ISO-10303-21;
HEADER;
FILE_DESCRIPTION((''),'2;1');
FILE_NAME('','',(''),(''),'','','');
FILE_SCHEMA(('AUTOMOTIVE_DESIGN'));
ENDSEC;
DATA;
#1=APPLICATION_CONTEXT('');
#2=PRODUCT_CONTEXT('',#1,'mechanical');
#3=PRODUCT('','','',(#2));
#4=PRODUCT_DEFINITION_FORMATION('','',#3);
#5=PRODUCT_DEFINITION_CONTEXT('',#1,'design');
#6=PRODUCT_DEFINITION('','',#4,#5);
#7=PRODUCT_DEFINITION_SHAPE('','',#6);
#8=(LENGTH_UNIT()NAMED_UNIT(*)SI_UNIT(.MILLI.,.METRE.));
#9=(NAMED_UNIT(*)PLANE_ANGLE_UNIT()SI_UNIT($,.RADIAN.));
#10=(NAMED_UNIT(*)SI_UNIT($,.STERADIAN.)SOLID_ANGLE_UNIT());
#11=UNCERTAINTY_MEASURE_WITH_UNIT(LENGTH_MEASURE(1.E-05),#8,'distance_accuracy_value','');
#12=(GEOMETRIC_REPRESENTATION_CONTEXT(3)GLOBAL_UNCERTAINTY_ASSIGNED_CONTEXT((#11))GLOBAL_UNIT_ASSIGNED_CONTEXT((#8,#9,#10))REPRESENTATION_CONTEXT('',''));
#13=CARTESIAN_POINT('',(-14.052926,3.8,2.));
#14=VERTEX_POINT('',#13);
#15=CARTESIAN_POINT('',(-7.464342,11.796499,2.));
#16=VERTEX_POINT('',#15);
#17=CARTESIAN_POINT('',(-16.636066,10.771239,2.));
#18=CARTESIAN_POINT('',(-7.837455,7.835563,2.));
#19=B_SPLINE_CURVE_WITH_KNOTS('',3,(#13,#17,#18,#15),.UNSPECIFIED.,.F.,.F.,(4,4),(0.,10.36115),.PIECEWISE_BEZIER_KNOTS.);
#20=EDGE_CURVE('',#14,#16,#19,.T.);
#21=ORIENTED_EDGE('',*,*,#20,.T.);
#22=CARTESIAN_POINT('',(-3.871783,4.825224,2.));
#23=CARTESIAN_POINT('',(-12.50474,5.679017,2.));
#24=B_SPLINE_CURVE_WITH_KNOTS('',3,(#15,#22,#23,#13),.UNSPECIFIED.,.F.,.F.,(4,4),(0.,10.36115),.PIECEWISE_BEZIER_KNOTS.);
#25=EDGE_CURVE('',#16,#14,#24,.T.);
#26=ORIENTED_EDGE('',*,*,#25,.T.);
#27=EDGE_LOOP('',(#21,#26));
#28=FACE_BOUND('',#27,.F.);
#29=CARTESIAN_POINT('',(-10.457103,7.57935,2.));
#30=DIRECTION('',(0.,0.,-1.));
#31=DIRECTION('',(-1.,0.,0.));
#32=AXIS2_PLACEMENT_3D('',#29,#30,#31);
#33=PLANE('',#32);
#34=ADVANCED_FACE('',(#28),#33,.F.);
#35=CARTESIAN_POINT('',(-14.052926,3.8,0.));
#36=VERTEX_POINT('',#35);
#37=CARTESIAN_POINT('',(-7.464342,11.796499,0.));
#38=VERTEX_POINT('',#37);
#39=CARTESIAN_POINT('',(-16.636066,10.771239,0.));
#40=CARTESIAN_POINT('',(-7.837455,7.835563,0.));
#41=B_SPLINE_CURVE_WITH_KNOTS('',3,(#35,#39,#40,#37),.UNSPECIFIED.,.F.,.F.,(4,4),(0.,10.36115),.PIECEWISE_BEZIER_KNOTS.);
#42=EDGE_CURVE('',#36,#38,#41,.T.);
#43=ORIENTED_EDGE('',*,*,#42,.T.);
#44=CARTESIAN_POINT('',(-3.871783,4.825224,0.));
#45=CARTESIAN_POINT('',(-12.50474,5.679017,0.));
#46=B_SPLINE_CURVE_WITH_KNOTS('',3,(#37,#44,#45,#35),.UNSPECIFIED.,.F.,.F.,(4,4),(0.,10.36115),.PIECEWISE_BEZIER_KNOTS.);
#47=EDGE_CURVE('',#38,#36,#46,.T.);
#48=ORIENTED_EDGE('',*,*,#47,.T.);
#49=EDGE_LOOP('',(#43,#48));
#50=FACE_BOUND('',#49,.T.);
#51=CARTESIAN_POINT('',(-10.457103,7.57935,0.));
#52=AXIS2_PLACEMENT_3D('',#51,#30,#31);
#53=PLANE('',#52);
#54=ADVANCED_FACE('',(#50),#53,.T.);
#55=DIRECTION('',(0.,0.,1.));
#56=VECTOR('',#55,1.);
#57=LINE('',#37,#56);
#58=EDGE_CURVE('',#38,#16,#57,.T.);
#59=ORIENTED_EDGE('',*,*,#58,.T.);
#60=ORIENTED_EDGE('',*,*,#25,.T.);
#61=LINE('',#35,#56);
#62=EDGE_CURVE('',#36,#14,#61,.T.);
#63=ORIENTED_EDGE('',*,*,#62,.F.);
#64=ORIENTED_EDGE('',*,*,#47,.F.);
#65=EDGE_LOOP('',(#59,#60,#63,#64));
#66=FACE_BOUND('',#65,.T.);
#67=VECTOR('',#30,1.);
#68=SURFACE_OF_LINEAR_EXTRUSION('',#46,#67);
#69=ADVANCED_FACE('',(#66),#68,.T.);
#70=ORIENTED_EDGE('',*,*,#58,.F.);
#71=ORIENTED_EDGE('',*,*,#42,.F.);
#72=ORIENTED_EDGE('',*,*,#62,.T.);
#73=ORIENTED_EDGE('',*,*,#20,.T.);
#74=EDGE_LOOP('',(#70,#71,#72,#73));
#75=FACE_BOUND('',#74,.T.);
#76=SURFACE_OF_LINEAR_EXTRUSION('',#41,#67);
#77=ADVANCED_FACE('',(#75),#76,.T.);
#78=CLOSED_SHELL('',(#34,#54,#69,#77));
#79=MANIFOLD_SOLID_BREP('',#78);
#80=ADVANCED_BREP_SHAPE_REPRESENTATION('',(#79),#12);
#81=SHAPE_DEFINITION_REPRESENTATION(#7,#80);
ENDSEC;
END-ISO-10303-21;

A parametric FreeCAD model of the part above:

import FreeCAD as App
import Part
import Sketcher

doc = App.newDocument("Part")
body = doc.addObject("PartDesign::Body", "Body")

sketch1 = body.newObject("Sketcher::SketchObject", "Sketch")
sketch1.AttachmentSupport = (doc.getObject("XY_Plane"), [""])
sketch1.MapMode = "FlatFace"
sketch1.addGeometry([
    Part.BSplineCurve([App.Vector(-14.052926, 3.8, 0), App.Vector(-16.636066, 10.771239, 0), App.Vector(-7.837455, 7.835563, 0), App.Vector(-7.464342, 11.796499, 0)], [4, 4], [0, 10.36115], False, 3, [1, 1, 1, 1], False),
    Part.BSplineCurve([App.Vector(-7.464342, 11.796499, 0), App.Vector(-3.871783, 4.825224, 0), App.Vector(-12.50474, 5.679017, 0), App.Vector(-14.052926, 3.8, 0)], [4, 4], [0, 10.36115], False, 3, [1, 1, 1, 1], False),
], False)
sketch1.addConstraint([
    Sketcher.Constraint("Block", 0),
    Sketcher.Constraint("Block", 1),
])
pad1 = body.newObject("PartDesign::Pad", "Pad")
pad1.Profile = sketch1
pad1.Length = 2

doc.recompute()
